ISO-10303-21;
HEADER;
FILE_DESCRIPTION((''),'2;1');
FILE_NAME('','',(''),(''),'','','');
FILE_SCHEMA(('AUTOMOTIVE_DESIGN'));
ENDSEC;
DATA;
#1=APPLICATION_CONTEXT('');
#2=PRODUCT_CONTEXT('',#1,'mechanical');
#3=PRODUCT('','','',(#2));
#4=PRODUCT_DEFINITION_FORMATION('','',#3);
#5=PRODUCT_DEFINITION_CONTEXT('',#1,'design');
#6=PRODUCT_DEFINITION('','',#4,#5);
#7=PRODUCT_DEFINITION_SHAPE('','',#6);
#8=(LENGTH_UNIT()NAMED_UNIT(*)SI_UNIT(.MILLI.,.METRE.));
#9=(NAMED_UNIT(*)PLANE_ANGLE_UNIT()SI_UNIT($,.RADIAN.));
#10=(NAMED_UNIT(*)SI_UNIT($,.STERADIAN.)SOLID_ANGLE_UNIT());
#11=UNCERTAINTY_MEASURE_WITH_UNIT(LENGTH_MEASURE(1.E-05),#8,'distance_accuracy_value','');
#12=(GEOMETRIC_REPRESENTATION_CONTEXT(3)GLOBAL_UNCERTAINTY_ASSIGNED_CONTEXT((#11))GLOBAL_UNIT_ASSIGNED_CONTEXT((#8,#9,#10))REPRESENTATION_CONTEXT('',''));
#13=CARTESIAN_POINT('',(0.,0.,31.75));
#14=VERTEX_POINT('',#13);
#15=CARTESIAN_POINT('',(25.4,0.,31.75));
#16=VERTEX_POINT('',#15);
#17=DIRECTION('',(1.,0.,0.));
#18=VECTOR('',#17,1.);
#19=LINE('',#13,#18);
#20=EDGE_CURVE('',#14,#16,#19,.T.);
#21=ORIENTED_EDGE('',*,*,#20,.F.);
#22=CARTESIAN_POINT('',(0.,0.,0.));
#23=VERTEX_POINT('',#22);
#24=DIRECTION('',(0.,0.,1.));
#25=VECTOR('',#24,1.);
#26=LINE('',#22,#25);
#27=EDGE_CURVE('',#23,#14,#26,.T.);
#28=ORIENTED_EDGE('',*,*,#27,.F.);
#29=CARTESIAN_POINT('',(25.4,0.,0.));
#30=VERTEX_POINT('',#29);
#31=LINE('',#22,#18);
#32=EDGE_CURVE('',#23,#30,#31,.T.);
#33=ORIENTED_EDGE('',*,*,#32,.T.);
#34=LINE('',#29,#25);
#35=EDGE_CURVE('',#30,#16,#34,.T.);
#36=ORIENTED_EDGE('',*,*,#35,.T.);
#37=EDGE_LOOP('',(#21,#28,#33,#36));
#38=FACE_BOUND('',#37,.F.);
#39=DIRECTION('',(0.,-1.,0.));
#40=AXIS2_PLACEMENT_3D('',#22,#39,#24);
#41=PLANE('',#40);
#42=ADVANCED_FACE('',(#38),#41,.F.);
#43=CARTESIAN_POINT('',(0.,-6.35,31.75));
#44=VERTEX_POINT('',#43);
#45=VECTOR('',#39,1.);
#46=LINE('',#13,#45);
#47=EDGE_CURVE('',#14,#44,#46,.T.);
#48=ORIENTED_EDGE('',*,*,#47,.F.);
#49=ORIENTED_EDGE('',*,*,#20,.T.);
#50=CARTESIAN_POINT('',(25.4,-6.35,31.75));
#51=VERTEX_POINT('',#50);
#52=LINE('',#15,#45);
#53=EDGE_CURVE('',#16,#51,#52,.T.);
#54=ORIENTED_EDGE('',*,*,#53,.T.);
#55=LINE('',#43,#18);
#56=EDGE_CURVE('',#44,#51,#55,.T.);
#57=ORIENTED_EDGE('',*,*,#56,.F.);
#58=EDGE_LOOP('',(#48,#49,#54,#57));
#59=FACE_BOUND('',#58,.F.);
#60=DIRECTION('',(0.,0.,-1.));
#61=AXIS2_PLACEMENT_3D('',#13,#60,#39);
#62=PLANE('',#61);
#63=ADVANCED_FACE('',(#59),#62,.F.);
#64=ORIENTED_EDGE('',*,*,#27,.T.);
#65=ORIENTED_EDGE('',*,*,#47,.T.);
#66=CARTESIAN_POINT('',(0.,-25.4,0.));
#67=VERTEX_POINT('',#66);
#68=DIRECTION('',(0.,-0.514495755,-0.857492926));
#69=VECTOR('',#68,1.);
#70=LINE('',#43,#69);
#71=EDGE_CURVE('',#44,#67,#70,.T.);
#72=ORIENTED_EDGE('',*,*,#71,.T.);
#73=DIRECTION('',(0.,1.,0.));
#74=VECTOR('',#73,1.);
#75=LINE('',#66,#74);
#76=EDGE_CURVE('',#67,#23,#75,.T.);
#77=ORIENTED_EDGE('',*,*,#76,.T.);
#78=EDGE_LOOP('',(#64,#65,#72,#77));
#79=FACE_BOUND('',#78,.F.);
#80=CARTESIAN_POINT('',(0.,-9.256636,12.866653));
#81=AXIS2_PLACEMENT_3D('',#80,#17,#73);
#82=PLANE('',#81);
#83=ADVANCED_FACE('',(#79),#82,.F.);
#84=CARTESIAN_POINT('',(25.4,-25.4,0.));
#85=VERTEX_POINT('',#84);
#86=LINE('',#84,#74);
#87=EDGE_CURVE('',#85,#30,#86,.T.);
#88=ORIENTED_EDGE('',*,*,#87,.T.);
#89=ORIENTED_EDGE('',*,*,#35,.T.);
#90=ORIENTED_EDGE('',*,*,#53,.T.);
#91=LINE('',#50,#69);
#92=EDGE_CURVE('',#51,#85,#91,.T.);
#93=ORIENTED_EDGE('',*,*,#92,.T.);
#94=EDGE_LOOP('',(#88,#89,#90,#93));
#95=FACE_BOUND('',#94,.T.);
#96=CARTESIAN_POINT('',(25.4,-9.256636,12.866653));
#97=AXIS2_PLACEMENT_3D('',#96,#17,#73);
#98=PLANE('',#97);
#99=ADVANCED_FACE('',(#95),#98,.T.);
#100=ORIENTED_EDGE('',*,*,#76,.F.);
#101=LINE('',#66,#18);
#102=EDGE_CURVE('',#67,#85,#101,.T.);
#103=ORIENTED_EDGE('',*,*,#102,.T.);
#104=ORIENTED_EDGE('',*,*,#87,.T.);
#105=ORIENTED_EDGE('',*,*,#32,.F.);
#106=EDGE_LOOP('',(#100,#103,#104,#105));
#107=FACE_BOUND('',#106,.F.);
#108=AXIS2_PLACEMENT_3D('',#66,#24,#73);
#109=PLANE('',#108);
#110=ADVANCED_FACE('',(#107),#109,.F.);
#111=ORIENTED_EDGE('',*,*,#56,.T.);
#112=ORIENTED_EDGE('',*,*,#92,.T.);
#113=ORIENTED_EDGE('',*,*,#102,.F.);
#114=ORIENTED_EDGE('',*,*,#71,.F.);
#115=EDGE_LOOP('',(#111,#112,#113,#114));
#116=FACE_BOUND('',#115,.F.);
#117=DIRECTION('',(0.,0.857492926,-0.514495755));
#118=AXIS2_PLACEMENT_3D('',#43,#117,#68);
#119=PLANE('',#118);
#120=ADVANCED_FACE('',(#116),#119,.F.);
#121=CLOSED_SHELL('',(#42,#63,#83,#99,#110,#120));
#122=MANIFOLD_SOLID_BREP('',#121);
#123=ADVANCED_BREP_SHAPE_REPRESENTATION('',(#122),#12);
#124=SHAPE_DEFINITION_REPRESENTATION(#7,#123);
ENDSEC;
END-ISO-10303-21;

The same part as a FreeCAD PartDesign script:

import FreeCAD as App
import Part
import Sketcher
from FreeCAD import Vector
Q = App.Units.Quantity


def add_polygon(sketch, points):
    """Adds a closed chain of lines whose ends are joined by coincident constraints."""
    first, n = sketch.GeometryCount, len(points)
    for a, b in zip(points, points[1:] + points[:1]):
        sketch.addGeometry(Part.LineSegment(App.Vector(*a, 0), App.Vector(*b, 0)), False)
    for i in range(n):
        sketch.addConstraint(Sketcher.Constraint("Coincident", first + i, 2, first + (i + 1) % n, 1))

doc = App.newDocument("Part")
body = doc.addObject("PartDesign::Body", "Body")

sketch1 = doc.addObject("Sketcher::SketchObject", "Sketch")
body.addObject(sketch1)
sketch1.AttachmentSupport = (doc.XY_Plane, [""])
sketch1.MapMode = "FlatFace"
add_polygon(sketch1, [(-6, 0), (0, 0), (0, 38), (-25, 38), (-25, 25), (-6, 25)])
sketch1.addConstraint([
    Sketcher.Constraint("Horizontal", 0),
    Sketcher.Constraint("Vertical", 1),
    Sketcher.Constraint("Horizontal", 2),
    Sketcher.Constraint("Vertical", 3),
    Sketcher.Constraint("Horizontal", 4),
    Sketcher.Constraint("Vertical", 5),
    Sketcher.Constraint("Coincident", 0, 2, -1, 1),
    Sketcher.Constraint("Equal", 2, 5),
    Sketcher.Constraint("DistanceX", 2, 2, 2, 1, Q("1 in")),
    Sketcher.Constraint("DistanceY", 1, 1, 1, 2, Q("1.5 in")),
    Sketcher.Constraint("DistanceX", 0, 1, 0, 2, Q("0.25 in")),
])
pad1 = doc.addObject("PartDesign::Pad", "Pad")
body.addObject(pad1)
pad1.Profile = sketch1
pad1.Length = Q("1.25 in")
body2 = doc.addObject("PartDesign::Body", "Body001")

sketch2 = doc.addObject("Sketcher::SketchObject", "Sketch001")
body2.addObject(sketch2)
sketch2.AttachmentSupport = (doc.getObject("YZ_Plane001"), [""])
sketch2.MapMode = "FlatFace"
add_polygon(sketch2, [(-25, 0), (0, 0), (0, 32), (-6, 32)])
sketch2.addConstraint([
    Sketcher.Constraint("Horizontal", 0),
    Sketcher.Constraint("Vertical", 1),
    Sketcher.Constraint("Horizontal", 2),
    Sketcher.Constraint("Coincident", 0, 2, -1, 1),
    Sketcher.Constraint("DistanceX", 0, 1, 0, 2, Q("1 in")),
    Sketcher.Constraint("DistanceX", 2, 2, 2, 1, Q("0.25 in")),
    Sketcher.Constraint("DistanceY", 1, 1, 1, 2, Q("1.25 in")),
])
pad2 = doc.addObject("PartDesign::Pad", "Pad001")
body2.addObject(pad2)
pad2.Profile = sketch2
pad2.Length = Q("1 in")
body.Visibility = False

doc.recompute()
